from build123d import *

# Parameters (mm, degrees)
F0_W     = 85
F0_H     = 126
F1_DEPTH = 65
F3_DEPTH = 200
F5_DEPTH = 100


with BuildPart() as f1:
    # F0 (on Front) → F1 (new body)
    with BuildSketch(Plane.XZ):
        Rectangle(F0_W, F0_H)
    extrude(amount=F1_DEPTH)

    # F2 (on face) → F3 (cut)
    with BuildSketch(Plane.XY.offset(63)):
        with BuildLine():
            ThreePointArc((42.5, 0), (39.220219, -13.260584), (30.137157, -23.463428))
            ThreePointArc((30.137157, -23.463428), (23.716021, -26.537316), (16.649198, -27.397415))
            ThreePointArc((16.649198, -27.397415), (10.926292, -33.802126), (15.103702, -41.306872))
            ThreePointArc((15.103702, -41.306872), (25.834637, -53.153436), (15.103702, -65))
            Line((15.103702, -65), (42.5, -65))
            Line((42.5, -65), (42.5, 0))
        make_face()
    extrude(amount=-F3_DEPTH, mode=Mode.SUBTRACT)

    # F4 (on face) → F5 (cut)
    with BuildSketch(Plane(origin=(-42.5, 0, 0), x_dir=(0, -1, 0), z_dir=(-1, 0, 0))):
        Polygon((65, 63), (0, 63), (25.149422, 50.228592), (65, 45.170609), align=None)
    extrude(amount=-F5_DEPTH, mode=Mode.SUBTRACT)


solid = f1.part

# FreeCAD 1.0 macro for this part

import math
import FreeCAD as App
import Part
import Sketcher

doc = App.newDocument("Part")
body = doc.addObject("PartDesign::Body", "Body")

sketch1 = doc.addObject("Sketcher::SketchObject", "Sketch")
body.addObject(sketch1)
sketch1.AttachmentSupport = (doc.XZ_Plane, [""])
sketch1.MapMode = "FlatFace"
sketch1.addGeometry(Part.LineSegment(App.Vector(-42, 63, 0), App.Vector(-42, -63, 0)), False)
sketch1.addGeometry(Part.LineSegment(App.Vector(-42, -63, 0), App.Vector(42, -63, 0)), False)
sketch1.addGeometry(Part.LineSegment(App.Vector(42, -63, 0), App.Vector(42, 63, 0)), False)
sketch1.addGeometry(Part.LineSegment(App.Vector(42, 63, 0), App.Vector(-42, 63, 0)), False)
sketch1.addConstraint(Sketcher.Constraint("Coincident", 0, 2, 1, 1))
sketch1.addConstraint(Sketcher.Constraint("Coincident", 1, 2, 2, 1))
sketch1.addConstraint(Sketcher.Constraint("Coincident", 2, 2, 3, 1))
sketch1.addConstraint(Sketcher.Constraint("Coincident", 3, 2, 0, 1))
sketch1.addConstraint(Sketcher.Constraint("Vertical", 0))
sketch1.addConstraint(Sketcher.Constraint("Horizontal", 1))
sketch1.addConstraint(Sketcher.Constraint("Vertical", 2))
sketch1.addConstraint(Sketcher.Constraint("Horizontal", 3))
sketch1.addConstraint(Sketcher.Constraint("Symmetric", 0, 2, 2, 2, -1, 1))
sketch1.addConstraint(Sketcher.Constraint("DistanceX", 1, 1, 1, 2, 85.0))
sketch1.addConstraint(Sketcher.Constraint("DistanceY", 0, 2, 0, 1, 126.0))
pad1 = doc.addObject("PartDesign::Pad", "Pad")
body.addObject(pad1)
pad1.Profile = sketch1
pad1.Length = 65

sketch2 = doc.addObject("Sketcher::SketchObject", "Sketch001")
body.addObject(sketch2)
sketch2.AttachmentSupport = (doc.XY_Plane, [""])
sketch2.MapMode = "FlatFace"
sketch2.AttachmentOffset = App.Placement(App.Vector(0, 0, 63), App.Rotation())
sketch2.addGeometry(Part.ArcOfCircle(Part.Circle(App.Vector(14, 0, 0), App.Vector(0, 0, 1), 28), math.radians(-56), math.radians(0)), False)
sketch2.addGeometry(Part.ArcOfCircle(Part.Circle(App.Vector(18, -5, 0), App.Vector(0, 0, 1), 22), math.radians(-92), math.radians(-55)), False)
sketch2.addGeometry(Part.ArcOfCircle(Part.Circle(App.Vector(18, -35, 0), App.Vector(0, 0, 1), 7), math.radians(103), math.radians(245)), False)
sketch2.addGeometry(Part.ArcOfCircle(Part.Circle(App.Vector(14, -53, 0), App.Vector(0, 0, 1), 12), math.radians(-84), math.radians(84)), False)
sketch2.addGeometry(Part.LineSegment(App.Vector(15, -65, 0), App.Vector(42, -65, 0)), False)
sketch2.addGeometry(Part.LineSegment(App.Vector(42, -65, 0), App.Vector(42, 0, 0)), False)
sketch2.addConstraint(Sketcher.Constraint("Coincident", 0, 1, 1, 2))
sketch2.addConstraint(Sketcher.Constraint("Coincident", 1, 1, 2, 1))
sketch2.addConstraint(Sketcher.Constraint("Coincident", 2, 2, 3, 2))
sketch2.addConstraint(Sketcher.Constraint("Coincident", 3, 1, 4, 1))
sketch2.addConstraint(Sketcher.Constraint("Coincident", 4, 2, 5, 1))
sketch2.addConstraint(Sketcher.Constraint("Tangent", 5, 2, 0, 2))
sketch2.addConstraint(Sketcher.Constraint("Horizontal", 4))
sketch2.addConstraint(Sketcher.Constraint("Vertical", 5))
sketch2.addConstraint(Sketcher.Constraint("PointOnObject", 0, 3, -1))
sketch2.addConstraint(Sketcher.Constraint("Vertical", 2, 2, 3, 1))
sketch2.addConstraint(Sketcher.Constraint("DistanceY", 5, 1, 5, 2, 65.0))
sketch2.addConstraint(Sketcher.Constraint("DistanceX", -1, 1, 4, 2, 42.5))
sketch2.addConstraint(Sketcher.Constraint("Radius", 2, 7.405901))
sketch2.addConstraint(Sketcher.Constraint("Radius", 0, 28.447031))
sketch2.addConstraint(Sketcher.Constraint("DistanceX", 4, 1, 4, 2, 27.396298))
sketch2.addConstraint(Sketcher.Constraint("Radius", 1, 21.977065))
sketch2.addConstraint(Sketcher.Constraint("Radius", 3, 11.904557))
sketch2.addConstraint(Sketcher.Constraint("DistanceX", 1, 1, 2, 3, 1.637699))
sketch2.addConstraint(Sketcher.Constraint("DistanceY", 2, 2, 2, 3, 6.686901))
sketch2.addConstraint(Sketcher.Constraint("DistanceY", 2, 3, -1, 1, 34.619971))
sketch2.addConstraint(Sketcher.Constraint("DistanceY", 0, 1, -1, 1, 23.463428))
pocket1 = doc.addObject("PartDesign::Pocket", "Pocket")
body.addObject(pocket1)
pocket1.Profile = sketch2
pocket1.Length = 200

sketch3 = doc.addObject("Sketcher::SketchObject", "Sketch002")
body.addObject(sketch3)
sketch3.AttachmentSupport = (doc.YZ_Plane, [""])
sketch3.MapMode = "FlatFace"
sketch3.AttachmentOffset = App.Placement(App.Vector(0, 0, -42.5), App.Rotation())
sketch3.addGeometry(Part.LineSegment(App.Vector(-65, 63, 0), App.Vector(0, 63, 0)), False)
sketch3.addGeometry(Part.LineSegment(App.Vector(0, 63, 0), App.Vector(-25, 50, 0)), False)
sketch3.addGeometry(Part.LineSegment(App.Vector(-25, 50, 0), App.Vector(-65, 45, 0)), False)
sketch3.addGeometry(Part.LineSegment(App.Vector(-65, 45, 0), App.Vector(-65, 63, 0)), False)
sketch3.addConstraint(Sketcher.Constraint("Coincident", 0, 2, 1, 1))
sketch3.addConstraint(Sketcher.Constraint("Coincident", 1, 2, 2, 1))
sketch3.addConstraint(Sketcher.Constraint("Coincident", 2, 2, 3, 1))
sketch3.addConstraint(Sketcher.Constraint("Coincident", 3, 2, 0, 1))
sketch3.addConstraint(Sketcher.Constraint("Horizontal", 0))
sketch3.addConstraint(Sketcher.Constraint("Vertical", 3))
sketch3.addConstraint(Sketcher.Constraint("PointOnObject", 0, 2, -2))
sketch3.addConstraint(Sketcher.Constraint("DistanceX", 0, 1, 0, 2, 65.0))
sketch3.addConstraint(Sketcher.Constraint("DistanceY", -1, 1, 0, 2, 63.0))
sketch3.addConstraint(Sketcher.Constraint("DistanceY", 3, 1, 3, 2, 17.829391))
sketch3.addConstraint(Sketcher.Constraint("DistanceY", 1, 2, 0, 2, 12.771408))
sketch3.addConstraint(Sketcher.Constraint("Distance", 1, 28.206423))
pocket2 = doc.addObject("PartDesign::Pocket", "Pocket001")
body.addObject(pocket2)
pocket2.Profile = sketch3
pocket2.Length = 100
pocket2.Reversed = True

doc.recompute()
